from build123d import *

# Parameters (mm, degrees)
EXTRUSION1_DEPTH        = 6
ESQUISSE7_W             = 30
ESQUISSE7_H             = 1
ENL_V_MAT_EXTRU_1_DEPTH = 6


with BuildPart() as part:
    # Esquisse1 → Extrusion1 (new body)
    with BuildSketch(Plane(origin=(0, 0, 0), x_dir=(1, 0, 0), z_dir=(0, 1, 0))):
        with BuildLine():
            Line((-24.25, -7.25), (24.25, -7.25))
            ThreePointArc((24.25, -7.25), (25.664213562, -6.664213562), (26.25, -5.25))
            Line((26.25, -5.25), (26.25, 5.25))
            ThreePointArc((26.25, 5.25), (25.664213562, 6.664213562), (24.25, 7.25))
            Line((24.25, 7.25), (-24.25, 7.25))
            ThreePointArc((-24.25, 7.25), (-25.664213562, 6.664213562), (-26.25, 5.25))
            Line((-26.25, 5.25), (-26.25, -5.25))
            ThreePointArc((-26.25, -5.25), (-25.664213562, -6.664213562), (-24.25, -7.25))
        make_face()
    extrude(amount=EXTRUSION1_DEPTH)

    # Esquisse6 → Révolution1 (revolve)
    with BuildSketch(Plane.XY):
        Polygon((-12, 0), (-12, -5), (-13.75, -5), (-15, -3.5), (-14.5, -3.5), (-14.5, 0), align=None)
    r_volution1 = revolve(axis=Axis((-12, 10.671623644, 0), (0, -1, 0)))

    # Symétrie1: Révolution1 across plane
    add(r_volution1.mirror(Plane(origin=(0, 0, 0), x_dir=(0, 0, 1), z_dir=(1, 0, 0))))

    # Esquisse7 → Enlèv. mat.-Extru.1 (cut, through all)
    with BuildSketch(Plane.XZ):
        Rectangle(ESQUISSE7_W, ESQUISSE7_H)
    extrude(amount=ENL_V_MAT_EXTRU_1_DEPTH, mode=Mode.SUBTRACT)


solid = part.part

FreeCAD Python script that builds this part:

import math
import FreeCAD as App
import Part
import Sketcher
from FreeCAD import Vector

doc = App.newDocument("Part")
params = doc.addObject("Spreadsheet::Sheet", "Params")
for row, (alias, value) in enumerate([
    ("sketch1_radius", "2 mm"),
    ("sketch1_width", "48.5 mm"),
    ("sketch1_height", "10.5 mm"),
    ("pad1_length", "6 mm"),
    ("sketch2_height", "5 mm"),
    ("sketch2_width", "2.5 mm"),
    ("sketch2_width2", "0.5 mm"),
    ("sketch2_height2", "3.5 mm"),
    ("sketch2_width3", "1.75 mm"),
    ("revolution_angle", "360 deg"),
    ("sketch3_width", "30 mm"),
    ("sketch3_height", "1 mm"),
], start=1):
    params.set(f"A{row}", alias)
    params.set(f"B{row}", "=" + value)
    params.setAlias(f"B{row}", alias)

body = doc.addObject("PartDesign::Body", "Body")

sketch1 = body.newObject("Sketcher::SketchObject", "Sketch")
sketch1.AttachmentSupport = (doc.getObject("XZ_Plane"), [""])
sketch1.MapMode = "FlatFace"
sketch1.addGeometry([
    Part.LineSegment(Vector(-24.25, 7.25, 0), Vector(24.25, 7.25, 0)),
    Part.ArcOfCircle(Part.Circle(Vector(24.25, 5.25, 0), Vector(0, 0, 1), 2), math.radians(0), math.radians(90)),
    Part.LineSegment(Vector(26.25, 5.25, 0), Vector(26.25, -5.25, 0)),
    Part.ArcOfCircle(Part.Circle(Vector(24.25, -5.25, 0), Vector(0, 0, 1), 2), math.radians(-90), math.radians(0)),
    Part.LineSegment(Vector(24.25, -7.25, 0), Vector(-24.25, -7.25, 0)),
    Part.ArcOfCircle(Part.Circle(Vector(-24.25, -5.25, 0), Vector(0, 0, 1), 2), math.radians(-180), math.radians(-90)),
    Part.LineSegment(Vector(-26.25, -5.25, 0), Vector(-26.25, 5.25, 0)),
    Part.ArcOfCircle(Part.Circle(Vector(-24.25, 5.25, 0), Vector(0, 0, 1), 2), math.radians(90), math.radians(180)),
], False)
sketch1.addConstraint([
    Sketcher.Constraint("Tangent", 0, 2, 1, 2),
    Sketcher.Constraint("Tangent", 1, 1, 2, 1),
    Sketcher.Constraint("Tangent", 2, 2, 3, 2),
    Sketcher.Constraint("Tangent", 3, 1, 4, 1),
    Sketcher.Constraint("Tangent", 4, 2, 5, 2),
    Sketcher.Constraint("Tangent", 5, 1, 6, 1),
    Sketcher.Constraint("Tangent", 6, 2, 7, 2),
    Sketcher.Constraint("Tangent", 7, 1, 0, 1),
    Sketcher.Constraint("Horizontal", 0),
    Sketcher.Constraint("Vertical", 2),
    Sketcher.Constraint("Horizontal", 4),
    Sketcher.Constraint("Vertical", 6),
    Sketcher.Constraint("Equal", 1, 3),
    Sketcher.Constraint("Equal", 3, 5),
    Sketcher.Constraint("Equal", 5, 7),
    Sketcher.Constraint("Symmetric", 1, 3, 5, 3, -1, 1),
    Sketcher.Constraint("Radius", 1, 2.0),
    Sketcher.Constraint("DistanceX", 0, 1, 0, 2, 48.5),
    Sketcher.Constraint("DistanceY", 2, 2, 2, 1, 10.5),
])
sketch1.setExpression("Constraints[16]", "Params.sketch1_radius")
sketch1.setExpression("Constraints[17]", "Params.sketch1_width")
sketch1.setExpression("Constraints[18]", "Params.sketch1_height")
pad1 = body.newObject("PartDesign::Pad", "Pad")
pad1.Profile = sketch1
pad1.setExpression("Length", "Params.pad1_length")
pad1.Reversed = True

sketch2 = body.newObject("Sketcher::SketchObject", "Sketch001")
sketch2.AttachmentSupport = (doc.getObject("XY_Plane"), [""])
sketch2.MapMode = "FlatFace"
sketch2.addGeometry([
    Part.LineSegment(Vector(-12, -5, 0), Vector(-12, 0, 0)),
    Part.LineSegment(Vector(-12, 0, 0), Vector(-14.5, 0, 0)),
    Part.LineSegment(Vector(-14.5, 0, 0), Vector(-14.5, -3.5, 0)),
    Part.LineSegment(Vector(-14.5, -3.5, 0), Vector(-15, -3.5, 0)),
    Part.LineSegment(Vector(-15, -3.5, 0), Vector(-13.75, -5, 0)),
    Part.LineSegment(Vector(-13.75, -5, 0), Vector(-12, -5, 0)),
], False)
sketch2.addGeometry(Part.LineSegment(Vector(-12, 0, 0), Vector(-12, -5, 0)), True)
sketch2.addConstraint([
    Sketcher.Constraint("Coincident", 0, 2, 1, 1),
    Sketcher.Constraint("Coincident", 1, 2, 2, 1),
    Sketcher.Constraint("Coincident", 2, 2, 3, 1),
    Sketcher.Constraint("Coincident", 3, 2, 4, 1),
    Sketcher.Constraint("Coincident", 4, 2, 5, 1),
    Sketcher.Constraint("Coincident", 5, 2, 0, 1),
    Sketcher.Constraint("Vertical", 0),
    Sketcher.Constraint("Horizontal", 1),
    Sketcher.Constraint("Vertical", 2),
    Sketcher.Constraint("Horizontal", 3),
    Sketcher.Constraint("Horizontal", 5),
    Sketcher.Constraint("Vertical", 6),
    Sketcher.Constraint("Coincident", 6, 1, 0, 2),
    Sketcher.Constraint("PointOnObject", 0, 2, -1),
    Sketcher.Constraint("Horizontal", 4, 2, 6, 2),
    Sketcher.Constraint("DistanceY", 0, 1, 0, 2, 5.0),
    Sketcher.Constraint("DistanceX", 1, 2, 1, 1, 2.5),
    Sketcher.Constraint("DistanceX", 3, 2, 3, 1, 0.5),
    Sketcher.Constraint("DistanceY", 2, 2, 2, 1, 3.5),
    Sketcher.Constraint("DistanceX", 0, 2, -1, 1, 12.0),
    Sketcher.Constraint("DistanceX", 5, 1, 5, 2, 1.75),
])
sketch2.setExpression("Constraints[15]", "Params.sketch2_height")
sketch2.setExpression("Constraints[16]", "Params.sketch2_width")
sketch2.setExpression("Constraints[17]", "Params.sketch2_width2")
sketch2.setExpression("Constraints[18]", "Params.sketch2_height2")
sketch2.setExpression("Constraints[20]", "Params.sketch2_width3")
revolution = body.newObject("PartDesign::Revolution", "Revolution")
revolution.Profile = sketch2
revolution.ReferenceAxis = (sketch2, ["Axis0"])
revolution.setExpression("Angle", "Params.revolution_angle")
doc.recompute()

mirrored = body.newObject("PartDesign::Mirrored", "Mirrored")
mirrored.Originals = [revolution]
mirrored.MirrorPlane = (doc.getObject("YZ_Plane"), [""])
body.Tip = mirrored

sketch3 = body.newObject("Sketcher::SketchObject", "Sketch002")
sketch3.AttachmentSupport = (doc.getObject("XZ_Plane"), [""])
sketch3.MapMode = "FlatFace"
sketch3.addGeometry([
    Part.LineSegment(Vector(-15, 0.5, 0), Vector(-15, -0.5, 0)),
    Part.LineSegment(Vector(-15, -0.5, 0), Vector(15, -0.5, 0)),
    Part.LineSegment(Vector(15, -0.5, 0), Vector(15, 0.5, 0)),
    Part.LineSegment(Vector(15, 0.5, 0), Vector(-15, 0.5, 0)),
], False)
sketch3.addConstraint([
    Sketcher.Constraint("Coincident", 0, 2, 1, 1),
    Sketcher.Constraint("Coincident", 1, 2, 2, 1),
    Sketcher.Constraint("Coincident", 2, 2, 3, 1),
    Sketcher.Constraint("Coincident", 3, 2, 0, 1),
    Sketcher.Constraint("Vertical", 0),
    Sketcher.Constraint("Horizontal", 1),
    Sketcher.Constraint("Vertical", 2),
    Sketcher.Constraint("Horizontal", 3),
    Sketcher.Constraint("Symmetric", 0, 2, 2, 2, -1, 1),
    Sketcher.Constraint("DistanceX", 1, 1, 1, 2, 30.0),
    Sketcher.Constraint("DistanceY", 0, 2, 0, 1, 1.0),
])
sketch3.setExpression("Constraints[9]", "Params.sketch3_width")
sketch3.setExpression("Constraints[10]", "Params.sketch3_height")
pocket1 = body.newObject("PartDesign::Pocket", "Pocket")
pocket1.Profile = sketch3
pocket1.Type = "ThroughAll"
pocket1.Reversed = True

doc.recompute()
